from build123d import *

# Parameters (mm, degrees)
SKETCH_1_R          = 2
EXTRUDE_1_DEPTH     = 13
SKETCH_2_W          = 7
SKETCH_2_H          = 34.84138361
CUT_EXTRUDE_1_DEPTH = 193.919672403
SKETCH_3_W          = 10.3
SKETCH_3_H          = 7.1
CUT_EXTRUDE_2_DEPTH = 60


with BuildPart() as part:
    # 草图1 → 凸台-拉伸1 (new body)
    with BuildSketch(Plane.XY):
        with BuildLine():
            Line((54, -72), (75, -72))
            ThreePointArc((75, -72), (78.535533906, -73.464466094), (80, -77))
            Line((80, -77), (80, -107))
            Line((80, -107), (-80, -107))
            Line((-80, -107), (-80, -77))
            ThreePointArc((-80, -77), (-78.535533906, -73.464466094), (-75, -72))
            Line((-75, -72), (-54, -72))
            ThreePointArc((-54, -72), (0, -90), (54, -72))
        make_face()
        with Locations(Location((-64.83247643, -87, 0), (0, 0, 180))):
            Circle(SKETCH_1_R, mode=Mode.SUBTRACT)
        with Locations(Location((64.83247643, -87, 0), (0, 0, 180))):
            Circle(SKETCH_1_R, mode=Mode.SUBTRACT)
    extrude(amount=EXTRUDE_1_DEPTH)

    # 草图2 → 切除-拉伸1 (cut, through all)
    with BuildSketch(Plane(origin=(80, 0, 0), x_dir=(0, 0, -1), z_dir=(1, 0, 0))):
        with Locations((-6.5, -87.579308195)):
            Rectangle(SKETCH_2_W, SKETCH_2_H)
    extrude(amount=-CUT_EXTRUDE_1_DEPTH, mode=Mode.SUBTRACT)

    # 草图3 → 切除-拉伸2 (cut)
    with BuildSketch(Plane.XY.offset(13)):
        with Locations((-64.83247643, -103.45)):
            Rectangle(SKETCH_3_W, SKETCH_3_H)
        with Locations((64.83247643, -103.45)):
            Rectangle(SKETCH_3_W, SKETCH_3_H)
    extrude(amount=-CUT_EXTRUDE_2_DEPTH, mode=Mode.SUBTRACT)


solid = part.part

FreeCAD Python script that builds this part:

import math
import FreeCAD as App
import Part
import Sketcher

doc = App.newDocument("Part")
body = doc.addObject("PartDesign::Body", "Body")

sketch1 = body.newObject("Sketcher::SketchObject", "Sketch")
sketch1.AttachmentSupport = (doc.getObject("XY_Plane"), [""])
sketch1.MapMode = "FlatFace"
sketch1.addGeometry([
    Part.LineSegment(App.Vector(75, -72, 0), App.Vector(54, -72, 0)),
    Part.ArcOfCircle(Part.Circle(App.Vector(0, 0, 0), App.Vector(0, 0, 1), 90), math.radians(-127), math.radians(-53)),
    Part.LineSegment(App.Vector(-54, -72, 0), App.Vector(-75, -72, 0)),
    Part.ArcOfCircle(Part.Circle(App.Vector(-75, -77, 0), App.Vector(0, 0, 1), 5), math.radians(90), math.radians(180)),
    Part.LineSegment(App.Vector(-80, -77, 0), App.Vector(-80, -107, 0)),
    Part.LineSegment(App.Vector(-80, -107, 0), App.Vector(80, -107, 0)),
    Part.LineSegment(App.Vector(80, -107, 0), App.Vector(80, -77, 0)),
    Part.ArcOfCircle(Part.Circle(App.Vector(75, -77, 0), App.Vector(0, 0, 1), 5), math.radians(0), math.radians(90)),
    Part.Circle(App.Vector(64.8, -87, 0), App.Vector(0, 0, 1), 2),
    Part.Circle(App.Vector(-64.8, -87, 0), App.Vector(0, 0, 1), 2),
], False)
sketch1.addConstraint([
    Sketcher.Constraint("Coincident", 0, 2, 1, 2),
    Sketcher.Constraint("Coincident", 1, 1, 2, 1),
    Sketcher.Constraint("Tangent", 2, 2, 3, 1),
    Sketcher.Constraint("Tangent", 3, 2, 4, 1),
    Sketcher.Constraint("Coincident", 4, 2, 5, 1),
    Sketcher.Constraint("Coincident", 5, 2, 6, 1),
    Sketcher.Constraint("Tangent", 6, 2, 7, 1),
    Sketcher.Constraint("Tangent", 7, 2, 0, 1),
    Sketcher.Constraint("Horizontal", 0),
    Sketcher.Constraint("Horizontal", 2),
    Sketcher.Constraint("Vertical", 4),
    Sketcher.Constraint("Horizontal", 5),
    Sketcher.Constraint("Vertical", 6),
    Sketcher.Constraint("Coincident", 1, 3, -1, 1),
    Sketcher.Constraint("Equal", 3, 7),
    Sketcher.Constraint("Equal", 8, 9),
    Sketcher.Constraint("Symmetric", 3, 3, 7, 3, -2),
    Sketcher.Constraint("Symmetric", 8, 3, 9, 3, -2),
    Sketcher.Constraint("Diameter", 8, 4.0),
    Sketcher.Constraint("Radius", 1, 90.0),
    Sketcher.Constraint("Radius", 3, 5.0),
    Sketcher.Constraint("DistanceX", 0, 2, 0, 1, 21.0),
    Sketcher.Constraint("DistanceX", 5, 1, 5, 2, 160.0),
    Sketcher.Constraint("DistanceY", 4, 2, 4, 1, 30.0),
    Sketcher.Constraint("DistanceY", 8, 3, -1, 1, 87.0),
    Sketcher.Constraint("DistanceX", -1, 1, 8, 3, 64.832476),
])
pad1 = body.newObject("PartDesign::Pad", "Pad")
pad1.Profile = sketch1
pad1.Length = 13

sketch2 = body.newObject("Sketcher::SketchObject", "Sketch001")
sketch2.AttachmentSupport = (doc.getObject("YZ_Plane"), [""])
sketch2.MapMode = "FlatFace"
sketch2.AttachmentOffset = App.Placement(App.Vector(0, 0, 80), App.Rotation())
sketch2.addGeometry([
    Part.LineSegment(App.Vector(-70, 10, 0), App.Vector(-105, 10, 0)),
    Part.LineSegment(App.Vector(-105, 10, 0), App.Vector(-105, 3, 0)),
    Part.LineSegment(App.Vector(-105, 3, 0), App.Vector(-70, 3, 0)),
    Part.LineSegment(App.Vector(-70, 3, 0), App.Vector(-70, 10, 0)),
], False)
sketch2.addConstraint([
    Sketcher.Constraint("Coincident", 0, 2, 1, 1),
    Sketcher.Constraint("Coincident", 1, 2, 2, 1),
    Sketcher.Constraint("Coincident", 2, 2, 3, 1),
    Sketcher.Constraint("Coincident", 3, 2, 0, 1),
    Sketcher.Constraint("Horizontal", 0),
    Sketcher.Constraint("Vertical", 1),
    Sketcher.Constraint("Horizontal", 2),
    Sketcher.Constraint("Vertical", 3),
    Sketcher.Constraint("DistanceY", 1, 2, 1, 1, 7.0),
    Sketcher.Constraint("DistanceX", 0, 2, -1, 1, 105.0),
    Sketcher.Constraint("DistanceY", -1, 1, 0, 2, 10.0),
    Sketcher.Constraint("DistanceX", 0, 2, 0, 1, 34.841384),
])
pocket1 = body.newObject("PartDesign::Pocket", "Pocket")
pocket1.Profile = sketch2
pocket1.Type = "ThroughAll"

sketch3 = body.newObject("Sketcher::SketchObject", "Sketch002")
sketch3.AttachmentSupport = (doc.getObject("XY_Plane"), [""])
sketch3.MapMode = "FlatFace"
sketch3.AttachmentOffset = App.Placement(App.Vector(0, 0, 13), App.Rotation())
sketch3.addGeometry([
    Part.LineSegment(App.Vector(-70, -100, 0), App.Vector(-70, -107, 0)),
    Part.LineSegment(App.Vector(-70, -107, 0), App.Vector(-60, -107, 0)),
    Part.LineSegment(App.Vector(-60, -107, 0), App.Vector(-60, -100, 0)),
    Part.LineSegment(App.Vector(-60, -100, 0), App.Vector(-70, -100, 0)),
    Part.LineSegment(App.Vector(60, -100, 0), App.Vector(60, -107, 0)),
    Part.LineSegment(App.Vector(60, -107, 0), App.Vector(70, -107, 0)),
    Part.LineSegment(App.Vector(70, -107, 0), App.Vector(70, -100, 0)),
    Part.LineSegment(App.Vector(70, -100, 0), App.Vector(60, -100, 0)),
], False)
sketch3.addConstraint([
    Sketcher.Constraint("Coincident", 0, 2, 1, 1),
    Sketcher.Constraint("Coincident", 1, 2, 2, 1),
    Sketcher.Constraint("Coincident", 2, 2, 3, 1),
    Sketcher.Constraint("Coincident", 3, 2, 0, 1),
    Sketcher.Constraint("Coincident", 4, 2, 5, 1),
    Sketcher.Constraint("Coincident", 5, 2, 6, 1),
    Sketcher.Constraint("Coincident", 6, 2, 7, 1),
    Sketcher.Constraint("Coincident", 7, 2, 4, 1),
    Sketcher.Constraint("Vertical", 0),
    Sketcher.Constraint("Horizontal", 1),
    Sketcher.Constraint("Vertical", 2),
    Sketcher.Constraint("Horizontal", 3),
    Sketcher.Constraint("Vertical", 4),
    Sketcher.Constraint("Horizontal", 5),
    Sketcher.Constraint("Vertical", 6),
    Sketcher.Constraint("Horizontal", 7),
    Sketcher.Constraint("Symmetric", 1, 2, 4, 2, -2),
    Sketcher.Constraint("Symmetric", 3, 2, 6, 2, -2),
    Sketcher.Constraint("DistanceX", 1, 1, 1, 2, 10.3),
    Sketcher.Constraint("DistanceY", 0, 2, 0, 1, 7.1),
    Sketcher.Constraint("DistanceY", 0, 2, -1, 1, 107.0),
    Sketcher.Constraint("DistanceX", 0, 2, -1, 1, 69.982476),
])
pocket2 = body.newObject("PartDesign::Pocket", "Pocket001")
pocket2.Profile = sketch3
pocket2.Length = 60

doc.recompute()
